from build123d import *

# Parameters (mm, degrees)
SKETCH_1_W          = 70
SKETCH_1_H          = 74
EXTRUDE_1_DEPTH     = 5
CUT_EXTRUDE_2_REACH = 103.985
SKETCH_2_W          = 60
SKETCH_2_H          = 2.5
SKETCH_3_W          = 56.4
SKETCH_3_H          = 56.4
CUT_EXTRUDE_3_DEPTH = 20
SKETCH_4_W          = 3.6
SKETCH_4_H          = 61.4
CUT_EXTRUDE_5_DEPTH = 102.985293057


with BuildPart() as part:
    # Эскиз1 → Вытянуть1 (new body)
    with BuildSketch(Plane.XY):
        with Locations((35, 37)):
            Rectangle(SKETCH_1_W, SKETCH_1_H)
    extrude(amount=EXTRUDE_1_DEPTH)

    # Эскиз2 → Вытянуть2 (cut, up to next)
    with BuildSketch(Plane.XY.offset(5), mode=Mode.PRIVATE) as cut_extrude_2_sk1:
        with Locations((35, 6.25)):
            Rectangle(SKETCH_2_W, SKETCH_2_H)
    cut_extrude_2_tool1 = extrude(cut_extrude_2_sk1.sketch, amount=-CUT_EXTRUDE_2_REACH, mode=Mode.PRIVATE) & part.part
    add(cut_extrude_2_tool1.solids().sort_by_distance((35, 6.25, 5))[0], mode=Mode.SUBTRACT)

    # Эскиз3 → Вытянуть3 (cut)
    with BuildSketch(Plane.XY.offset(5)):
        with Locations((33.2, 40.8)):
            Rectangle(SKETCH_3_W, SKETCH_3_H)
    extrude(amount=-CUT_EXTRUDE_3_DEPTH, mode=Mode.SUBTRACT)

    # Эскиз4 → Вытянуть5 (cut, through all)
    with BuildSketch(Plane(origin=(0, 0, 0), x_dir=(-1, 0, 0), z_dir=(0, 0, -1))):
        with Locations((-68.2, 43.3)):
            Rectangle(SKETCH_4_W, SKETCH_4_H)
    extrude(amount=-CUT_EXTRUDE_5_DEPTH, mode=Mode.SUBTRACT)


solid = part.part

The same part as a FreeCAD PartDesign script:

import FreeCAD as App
import Part
import Sketcher
Q = App.Units.Quantity


def add_polygon(sketch, points):
    """Adds a closed chain of lines whose ends are joined by coincident constraints."""
    first, n = sketch.GeometryCount, len(points)
    for a, b in zip(points, points[1:] + points[:1]):
        sketch.addGeometry(Part.LineSegment(App.Vector(*a, 0), App.Vector(*b, 0)), False)
    for i in range(n):
        sketch.addConstraint(Sketcher.Constraint("Coincident", first + i, 2, first + (i + 1) % n, 1))

doc = App.newDocument("Part")
body = doc.addObject("PartDesign::Body", "Body")

# Sketch on XY plane
sketch1 = body.newObject("Sketcher::SketchObject", "Sketch")
sketch1.AttachmentSupport = (doc.getObject("XY_Plane"), [""])
sketch1.MapMode = "FlatFace"
add_polygon(sketch1, [(0, 74), (0, 0), (70, 0), (70, 74)])  # lines 0-3
sketch1.addConstraint([
    Sketcher.Constraint("Vertical", 0),
    Sketcher.Constraint("Horizontal", 1),
    Sketcher.Constraint("Vertical", 2),
    Sketcher.Constraint("Horizontal", 3),
    Sketcher.Constraint("Coincident", 0, 2, -1, 1),
    Sketcher.Constraint("DistanceX", 1, 1, 1, 2, Q("70 mm")),
    Sketcher.Constraint("DistanceY", 0, 2, 0, 1, Q("74 mm")),
])
pad1 = body.newObject("PartDesign::Pad", "Pad")
pad1.Profile = sketch1
pad1.Length = 5

# Sketch on XY plane
sketch2 = body.newObject("Sketcher::SketchObject", "Sketch001")
sketch2.AttachmentSupport = (doc.getObject("XY_Plane"), [""])
sketch2.MapMode = "FlatFace"
sketch2.AttachmentOffset = App.Placement(App.Vector(0, 0, 5), App.Rotation())
add_polygon(sketch2, [(5, 7.5), (5, 5), (65, 5), (65, 7.5)])  # lines 0-3
sketch2.addConstraint([
    Sketcher.Constraint("Vertical", 0),
    Sketcher.Constraint("Horizontal", 1),
    Sketcher.Constraint("Vertical", 2),
    Sketcher.Constraint("Horizontal", 3),
    Sketcher.Constraint("DistanceX", 1, 1, 1, 2, Q("60 mm")),
    Sketcher.Constraint("DistanceY", 0, 2, 0, 1, Q("2.5 mm")),
    Sketcher.Constraint("DistanceX", -1, 1, 0, 2, Q("5 mm")),
    Sketcher.Constraint("DistanceY", -1, 1, 0, 2, Q("5 mm")),
])
pocket1 = body.newObject("PartDesign::Pocket", "Pocket")
pocket1.Profile = sketch2
pocket1.Type = "UpToFirst"

# Sketch on XY plane
sketch3 = body.newObject("Sketcher::SketchObject", "Sketch002")
sketch3.AttachmentSupport = (doc.getObject("XY_Plane"), [""])
sketch3.MapMode = "FlatFace"
sketch3.AttachmentOffset = App.Placement(App.Vector(0, 0, 5), App.Rotation())
add_polygon(sketch3, [(5, 69), (5, 12.6), (61.4, 12.6), (61.4, 69)])  # lines 0-3
sketch3.addConstraint([
    Sketcher.Constraint("Vertical", 0),
    Sketcher.Constraint("Horizontal", 1),
    Sketcher.Constraint("Vertical", 2),
    Sketcher.Constraint("Horizontal", 3),
    Sketcher.Constraint("Equal", 3, 0),
    Sketcher.Constraint("DistanceX", 1, 1, 1, 2, Q("56.4 mm")),
    Sketcher.Constraint("DistanceX", -1, 1, 0, 2, Q("5 mm")),
    Sketcher.Constraint("DistanceY", -1, 1, 2, 2, Q("69 mm")),
])
pocket2 = body.newObject("PartDesign::Pocket", "Pocket001")
pocket2.Profile = sketch3
pocket2.Length = 20

# Sketch on XY plane
sketch4 = body.newObject("Sketcher::SketchObject", "Sketch003")
sketch4.AttachmentSupport = (doc.getObject("XY_Plane"), [""])
sketch4.MapMode = "FlatFace"
add_polygon(sketch4, [(70, 74), (70, 12.6), (66.4, 12.6), (66.4, 74)])  # lines 0-3
sketch4.addConstraint([
    Sketcher.Constraint("Vertical", 0),
    Sketcher.Constraint("Horizontal", 1),
    Sketcher.Constraint("Vertical", 2),
    Sketcher.Constraint("Horizontal", 3),
    Sketcher.Constraint("DistanceX", 1, 2, 1, 1, Q("3.6 mm")),
    Sketcher.Constraint("DistanceY", 0, 2, 0, 1, Q("61.4 mm")),
    Sketcher.Constraint("DistanceX", -1, 1, 0, 2, Q("70 mm")),
    Sketcher.Constraint("DistanceY", -1, 1, 2, 2, Q("74 mm")),
])
pocket3 = body.newObject("PartDesign::Pocket", "Pocket002")
pocket3.Profile = sketch4
pocket3.Type = "ThroughAll"
pocket3.Reversed = True

doc.recompute()
